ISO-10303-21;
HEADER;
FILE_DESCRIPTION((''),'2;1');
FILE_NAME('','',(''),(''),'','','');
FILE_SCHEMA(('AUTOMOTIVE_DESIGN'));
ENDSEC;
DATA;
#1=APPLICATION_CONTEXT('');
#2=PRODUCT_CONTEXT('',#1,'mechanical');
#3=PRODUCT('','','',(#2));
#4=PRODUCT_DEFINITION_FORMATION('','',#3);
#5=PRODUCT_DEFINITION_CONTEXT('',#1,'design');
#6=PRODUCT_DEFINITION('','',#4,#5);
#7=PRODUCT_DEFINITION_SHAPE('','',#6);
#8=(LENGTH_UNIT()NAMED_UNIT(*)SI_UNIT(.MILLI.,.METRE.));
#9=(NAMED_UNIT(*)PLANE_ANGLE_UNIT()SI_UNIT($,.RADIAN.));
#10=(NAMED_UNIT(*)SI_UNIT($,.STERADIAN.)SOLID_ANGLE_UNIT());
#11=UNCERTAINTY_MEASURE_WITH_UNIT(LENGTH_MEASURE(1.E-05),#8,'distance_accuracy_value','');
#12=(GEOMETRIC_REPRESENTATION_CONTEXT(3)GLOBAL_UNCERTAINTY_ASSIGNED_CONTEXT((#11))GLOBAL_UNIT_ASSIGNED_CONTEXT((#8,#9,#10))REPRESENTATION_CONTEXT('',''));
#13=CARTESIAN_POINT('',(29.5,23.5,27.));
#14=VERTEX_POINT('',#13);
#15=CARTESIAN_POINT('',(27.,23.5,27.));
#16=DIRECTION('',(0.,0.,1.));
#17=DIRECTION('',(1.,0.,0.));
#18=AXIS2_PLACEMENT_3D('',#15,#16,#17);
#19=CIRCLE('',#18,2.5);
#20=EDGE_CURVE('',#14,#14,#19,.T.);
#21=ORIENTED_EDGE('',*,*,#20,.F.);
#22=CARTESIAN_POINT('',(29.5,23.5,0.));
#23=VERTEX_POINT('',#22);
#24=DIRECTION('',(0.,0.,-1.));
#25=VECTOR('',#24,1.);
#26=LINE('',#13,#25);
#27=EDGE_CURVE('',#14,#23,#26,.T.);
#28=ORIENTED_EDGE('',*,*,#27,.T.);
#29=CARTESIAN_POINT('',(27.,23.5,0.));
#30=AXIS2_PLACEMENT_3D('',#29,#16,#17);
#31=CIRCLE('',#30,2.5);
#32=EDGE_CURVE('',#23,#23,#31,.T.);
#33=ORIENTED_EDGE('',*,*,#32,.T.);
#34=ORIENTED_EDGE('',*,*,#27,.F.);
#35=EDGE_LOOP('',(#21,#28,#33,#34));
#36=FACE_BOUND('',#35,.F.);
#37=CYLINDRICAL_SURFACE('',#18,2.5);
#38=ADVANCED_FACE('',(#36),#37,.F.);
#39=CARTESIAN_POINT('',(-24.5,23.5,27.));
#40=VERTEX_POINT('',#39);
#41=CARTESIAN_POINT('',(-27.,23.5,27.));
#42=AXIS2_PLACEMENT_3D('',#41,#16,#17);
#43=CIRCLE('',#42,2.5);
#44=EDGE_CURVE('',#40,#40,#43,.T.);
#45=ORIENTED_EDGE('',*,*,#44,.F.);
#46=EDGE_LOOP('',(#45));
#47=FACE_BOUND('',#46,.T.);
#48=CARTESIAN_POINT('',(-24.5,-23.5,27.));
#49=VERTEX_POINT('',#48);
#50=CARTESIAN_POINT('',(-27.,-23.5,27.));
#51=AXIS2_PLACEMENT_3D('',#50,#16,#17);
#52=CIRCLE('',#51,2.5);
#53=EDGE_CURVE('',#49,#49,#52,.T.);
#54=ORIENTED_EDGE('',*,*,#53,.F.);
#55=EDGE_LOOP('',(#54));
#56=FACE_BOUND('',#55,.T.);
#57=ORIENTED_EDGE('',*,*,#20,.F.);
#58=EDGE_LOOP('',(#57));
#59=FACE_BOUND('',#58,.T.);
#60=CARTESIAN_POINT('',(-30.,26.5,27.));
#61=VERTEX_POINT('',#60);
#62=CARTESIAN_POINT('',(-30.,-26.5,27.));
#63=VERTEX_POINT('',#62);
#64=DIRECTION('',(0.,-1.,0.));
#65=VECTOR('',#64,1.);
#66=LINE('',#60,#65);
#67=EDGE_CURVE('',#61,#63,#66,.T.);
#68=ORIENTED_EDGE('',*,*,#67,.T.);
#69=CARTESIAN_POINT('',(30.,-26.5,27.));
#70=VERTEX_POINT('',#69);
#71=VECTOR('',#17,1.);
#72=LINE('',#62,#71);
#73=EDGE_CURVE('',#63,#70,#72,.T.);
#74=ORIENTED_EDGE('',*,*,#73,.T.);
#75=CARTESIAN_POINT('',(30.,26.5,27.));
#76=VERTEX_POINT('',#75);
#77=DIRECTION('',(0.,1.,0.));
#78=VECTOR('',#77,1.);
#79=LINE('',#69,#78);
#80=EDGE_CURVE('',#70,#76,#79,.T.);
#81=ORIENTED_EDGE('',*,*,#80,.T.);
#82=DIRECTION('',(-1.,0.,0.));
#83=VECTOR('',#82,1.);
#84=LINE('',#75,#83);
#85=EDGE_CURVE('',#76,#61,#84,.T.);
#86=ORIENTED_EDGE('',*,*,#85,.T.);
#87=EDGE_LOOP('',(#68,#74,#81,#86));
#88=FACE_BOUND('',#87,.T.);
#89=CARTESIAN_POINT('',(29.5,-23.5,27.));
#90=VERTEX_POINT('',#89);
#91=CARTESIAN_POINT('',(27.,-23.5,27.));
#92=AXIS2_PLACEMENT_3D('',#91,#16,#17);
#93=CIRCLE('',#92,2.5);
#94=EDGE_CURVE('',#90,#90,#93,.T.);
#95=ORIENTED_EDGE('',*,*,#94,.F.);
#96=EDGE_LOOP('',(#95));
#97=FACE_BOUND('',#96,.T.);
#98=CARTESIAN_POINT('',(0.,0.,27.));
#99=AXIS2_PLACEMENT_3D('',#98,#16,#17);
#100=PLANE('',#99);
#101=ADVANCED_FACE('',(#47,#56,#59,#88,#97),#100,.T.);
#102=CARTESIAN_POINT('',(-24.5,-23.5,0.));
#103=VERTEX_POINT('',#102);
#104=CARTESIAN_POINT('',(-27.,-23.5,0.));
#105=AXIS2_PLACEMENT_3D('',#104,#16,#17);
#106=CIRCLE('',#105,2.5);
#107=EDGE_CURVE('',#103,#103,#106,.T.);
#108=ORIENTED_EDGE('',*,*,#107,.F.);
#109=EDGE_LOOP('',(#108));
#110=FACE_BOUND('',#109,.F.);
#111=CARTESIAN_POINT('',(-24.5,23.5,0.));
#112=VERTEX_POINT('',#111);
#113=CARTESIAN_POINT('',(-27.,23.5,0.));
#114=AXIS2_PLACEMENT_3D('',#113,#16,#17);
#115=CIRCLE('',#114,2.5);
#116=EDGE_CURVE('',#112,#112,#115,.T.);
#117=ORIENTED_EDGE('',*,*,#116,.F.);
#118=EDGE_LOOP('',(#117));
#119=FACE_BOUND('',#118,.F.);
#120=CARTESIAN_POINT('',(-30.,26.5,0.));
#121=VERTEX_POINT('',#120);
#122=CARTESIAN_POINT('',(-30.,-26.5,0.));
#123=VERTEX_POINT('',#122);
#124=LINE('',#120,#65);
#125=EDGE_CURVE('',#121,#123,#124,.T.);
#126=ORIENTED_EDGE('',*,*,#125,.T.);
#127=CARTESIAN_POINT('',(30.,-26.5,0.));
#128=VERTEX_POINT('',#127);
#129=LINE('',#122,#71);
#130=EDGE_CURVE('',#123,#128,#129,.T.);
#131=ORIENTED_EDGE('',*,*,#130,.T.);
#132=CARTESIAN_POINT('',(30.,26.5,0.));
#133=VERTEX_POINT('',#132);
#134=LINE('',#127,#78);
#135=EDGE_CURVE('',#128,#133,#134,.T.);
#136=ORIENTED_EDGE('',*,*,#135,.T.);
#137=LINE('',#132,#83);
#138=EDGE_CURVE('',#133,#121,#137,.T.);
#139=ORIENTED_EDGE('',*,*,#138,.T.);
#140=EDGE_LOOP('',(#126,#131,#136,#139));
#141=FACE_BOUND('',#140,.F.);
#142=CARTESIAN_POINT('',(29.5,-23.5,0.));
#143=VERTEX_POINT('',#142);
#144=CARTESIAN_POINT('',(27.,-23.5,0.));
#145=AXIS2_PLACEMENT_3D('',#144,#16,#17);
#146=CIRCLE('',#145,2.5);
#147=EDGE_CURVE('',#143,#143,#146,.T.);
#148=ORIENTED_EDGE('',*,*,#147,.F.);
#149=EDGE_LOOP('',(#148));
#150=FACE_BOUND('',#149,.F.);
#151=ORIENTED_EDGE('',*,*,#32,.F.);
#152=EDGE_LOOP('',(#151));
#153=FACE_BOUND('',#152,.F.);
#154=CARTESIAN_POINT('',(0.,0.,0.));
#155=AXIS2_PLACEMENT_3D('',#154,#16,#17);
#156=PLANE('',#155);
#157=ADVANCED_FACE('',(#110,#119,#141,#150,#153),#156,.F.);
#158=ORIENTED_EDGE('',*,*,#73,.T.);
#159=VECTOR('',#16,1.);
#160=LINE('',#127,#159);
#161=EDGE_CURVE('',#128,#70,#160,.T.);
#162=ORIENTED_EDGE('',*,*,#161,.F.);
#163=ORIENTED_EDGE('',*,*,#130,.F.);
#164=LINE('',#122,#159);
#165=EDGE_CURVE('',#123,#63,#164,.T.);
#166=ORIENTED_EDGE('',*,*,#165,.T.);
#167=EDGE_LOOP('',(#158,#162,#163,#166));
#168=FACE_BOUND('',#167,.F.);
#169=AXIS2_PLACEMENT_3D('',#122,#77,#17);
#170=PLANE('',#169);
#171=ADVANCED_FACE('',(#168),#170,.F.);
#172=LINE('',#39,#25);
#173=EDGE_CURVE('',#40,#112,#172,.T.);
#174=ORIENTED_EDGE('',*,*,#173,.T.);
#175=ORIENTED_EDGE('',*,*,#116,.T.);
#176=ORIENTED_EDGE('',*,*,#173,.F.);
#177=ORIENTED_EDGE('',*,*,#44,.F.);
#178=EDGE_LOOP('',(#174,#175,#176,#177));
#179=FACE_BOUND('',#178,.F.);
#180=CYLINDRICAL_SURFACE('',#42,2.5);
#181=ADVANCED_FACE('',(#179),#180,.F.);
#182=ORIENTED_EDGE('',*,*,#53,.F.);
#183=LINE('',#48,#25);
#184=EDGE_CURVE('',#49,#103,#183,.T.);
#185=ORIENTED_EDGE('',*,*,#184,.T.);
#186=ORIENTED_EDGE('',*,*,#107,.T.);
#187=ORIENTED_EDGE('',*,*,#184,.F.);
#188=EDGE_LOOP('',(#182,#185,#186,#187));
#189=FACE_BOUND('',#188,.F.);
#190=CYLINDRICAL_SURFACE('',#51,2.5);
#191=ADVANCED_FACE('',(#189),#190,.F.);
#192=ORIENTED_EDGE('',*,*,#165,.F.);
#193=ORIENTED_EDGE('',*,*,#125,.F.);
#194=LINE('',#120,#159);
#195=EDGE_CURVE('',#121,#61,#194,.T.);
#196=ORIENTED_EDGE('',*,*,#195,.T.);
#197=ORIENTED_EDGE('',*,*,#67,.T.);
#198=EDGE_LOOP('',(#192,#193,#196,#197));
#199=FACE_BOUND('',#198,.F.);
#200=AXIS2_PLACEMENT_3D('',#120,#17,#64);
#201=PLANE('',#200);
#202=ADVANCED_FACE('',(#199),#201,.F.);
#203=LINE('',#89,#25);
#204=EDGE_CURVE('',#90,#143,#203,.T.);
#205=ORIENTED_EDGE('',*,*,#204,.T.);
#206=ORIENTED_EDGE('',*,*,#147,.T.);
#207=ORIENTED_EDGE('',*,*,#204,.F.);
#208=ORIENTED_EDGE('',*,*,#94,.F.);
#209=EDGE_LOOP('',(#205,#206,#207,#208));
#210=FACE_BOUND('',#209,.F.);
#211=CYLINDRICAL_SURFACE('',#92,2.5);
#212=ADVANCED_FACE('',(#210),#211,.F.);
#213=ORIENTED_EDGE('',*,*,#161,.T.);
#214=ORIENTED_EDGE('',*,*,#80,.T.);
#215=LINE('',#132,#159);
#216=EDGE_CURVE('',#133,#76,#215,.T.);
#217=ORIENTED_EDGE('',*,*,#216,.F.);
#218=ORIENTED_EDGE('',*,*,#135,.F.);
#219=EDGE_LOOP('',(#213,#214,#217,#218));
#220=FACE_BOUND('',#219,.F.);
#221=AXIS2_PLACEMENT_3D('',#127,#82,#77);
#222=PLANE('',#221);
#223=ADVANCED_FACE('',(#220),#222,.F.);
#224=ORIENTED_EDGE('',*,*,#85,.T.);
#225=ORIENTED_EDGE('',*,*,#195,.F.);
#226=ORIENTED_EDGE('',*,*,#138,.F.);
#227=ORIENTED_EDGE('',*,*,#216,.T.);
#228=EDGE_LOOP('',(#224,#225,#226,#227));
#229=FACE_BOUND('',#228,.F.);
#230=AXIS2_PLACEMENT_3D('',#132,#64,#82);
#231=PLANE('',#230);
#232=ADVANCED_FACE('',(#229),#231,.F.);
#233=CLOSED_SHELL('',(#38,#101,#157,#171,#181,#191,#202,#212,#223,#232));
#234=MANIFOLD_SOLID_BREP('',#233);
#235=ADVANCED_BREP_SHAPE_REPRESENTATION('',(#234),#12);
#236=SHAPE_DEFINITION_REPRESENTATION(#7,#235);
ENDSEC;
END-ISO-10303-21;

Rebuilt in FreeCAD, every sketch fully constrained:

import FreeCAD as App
import Part
import Sketcher
Q = App.Units.Quantity


def add_polygon(sketch, points):
    """Adds a closed chain of lines whose ends are joined by coincident constraints."""
    first, n = sketch.GeometryCount, len(points)
    for a, b in zip(points, points[1:] + points[:1]):
        sketch.addGeometry(Part.LineSegment(App.Vector(*a, 0), App.Vector(*b, 0)), False)
    for i in range(n):
        sketch.addConstraint(Sketcher.Constraint("Coincident", first + i, 2, first + (i + 1) % n, 1))

doc = App.newDocument("Part")
body = doc.addObject("PartDesign::Body", "Body")

sketch1 = doc.addObject("Sketcher::SketchObject", "Sketch")
body.addObject(sketch1)
sketch1.AttachmentSupport = (doc.XY_Plane, [""])
sketch1.MapMode = "FlatFace"
add_polygon(sketch1, [(-30, 26), (-30, -26), (30, -26), (30, 26)])
sketch1.addConstraint([
    Sketcher.Constraint("Vertical", 0),
    Sketcher.Constraint("Horizontal", 1),
    Sketcher.Constraint("Vertical", 2),
    Sketcher.Constraint("Horizontal", 3),
    Sketcher.Constraint("Symmetric", 0, 2, 2, 2, -1, 1),
    Sketcher.Constraint("DistanceX", 0, 2, -1, 1, Q("30 mm")),
    Sketcher.Constraint("DistanceY", 0, 2, 0, 1, Q("53 mm")),
])
pad1 = doc.addObject("PartDesign::Pad", "Pad")
body.addObject(pad1)
pad1.Profile = sketch1
pad1.Length = 27

sketch2 = doc.addObject("Sketcher::SketchObject", "Sketch001")
body.addObject(sketch2)
sketch2.AttachmentSupport = (doc.XY_Plane, [""])
sketch2.MapMode = "FlatFace"
sketch2.AttachmentOffset = App.Placement(App.Vector(0, 0, 27), App.Rotation())
sketch2.addGeometry([
    Part.Circle(App.Vector(-27, 23.5, 0), App.Vector(0, 0, 1), 2.5),
    Part.Circle(App.Vector(27, 23.5, 0), App.Vector(0, 0, 1), 2.5),
    Part.Circle(App.Vector(27, -23.5, 0), App.Vector(0, 0, 1), 2.5),
    Part.Circle(App.Vector(-27, -23.5, 0), App.Vector(0, 0, 1), 2.5),
], False)
sketch2.addConstraint([
    Sketcher.Constraint("Equal", 0, 1),
    Sketcher.Constraint("Equal", 1, 2),
    Sketcher.Constraint("Equal", 2, 3),
    Sketcher.Constraint("Symmetric", 0, 3, 2, 3, -1, 1),
    Sketcher.Constraint("Symmetric", 1, 3, 3, 3, -1, 1),
    Sketcher.Constraint("Symmetric", 0, 3, 1, 3, -2),
    Sketcher.Constraint("Diameter", 0, Q("5 mm")),
    Sketcher.Constraint("DistanceX", 0, 3, -1, 1, Q("27 mm")),
    Sketcher.Constraint("DistanceY", 2, 3, 1, 3, Q("47 mm")),
])
pocket1 = doc.addObject("PartDesign::Pocket", "Pocket")
body.addObject(pocket1)
pocket1.Profile = sketch2
pocket1.Type = "ThroughAll"

doc.recompute()
